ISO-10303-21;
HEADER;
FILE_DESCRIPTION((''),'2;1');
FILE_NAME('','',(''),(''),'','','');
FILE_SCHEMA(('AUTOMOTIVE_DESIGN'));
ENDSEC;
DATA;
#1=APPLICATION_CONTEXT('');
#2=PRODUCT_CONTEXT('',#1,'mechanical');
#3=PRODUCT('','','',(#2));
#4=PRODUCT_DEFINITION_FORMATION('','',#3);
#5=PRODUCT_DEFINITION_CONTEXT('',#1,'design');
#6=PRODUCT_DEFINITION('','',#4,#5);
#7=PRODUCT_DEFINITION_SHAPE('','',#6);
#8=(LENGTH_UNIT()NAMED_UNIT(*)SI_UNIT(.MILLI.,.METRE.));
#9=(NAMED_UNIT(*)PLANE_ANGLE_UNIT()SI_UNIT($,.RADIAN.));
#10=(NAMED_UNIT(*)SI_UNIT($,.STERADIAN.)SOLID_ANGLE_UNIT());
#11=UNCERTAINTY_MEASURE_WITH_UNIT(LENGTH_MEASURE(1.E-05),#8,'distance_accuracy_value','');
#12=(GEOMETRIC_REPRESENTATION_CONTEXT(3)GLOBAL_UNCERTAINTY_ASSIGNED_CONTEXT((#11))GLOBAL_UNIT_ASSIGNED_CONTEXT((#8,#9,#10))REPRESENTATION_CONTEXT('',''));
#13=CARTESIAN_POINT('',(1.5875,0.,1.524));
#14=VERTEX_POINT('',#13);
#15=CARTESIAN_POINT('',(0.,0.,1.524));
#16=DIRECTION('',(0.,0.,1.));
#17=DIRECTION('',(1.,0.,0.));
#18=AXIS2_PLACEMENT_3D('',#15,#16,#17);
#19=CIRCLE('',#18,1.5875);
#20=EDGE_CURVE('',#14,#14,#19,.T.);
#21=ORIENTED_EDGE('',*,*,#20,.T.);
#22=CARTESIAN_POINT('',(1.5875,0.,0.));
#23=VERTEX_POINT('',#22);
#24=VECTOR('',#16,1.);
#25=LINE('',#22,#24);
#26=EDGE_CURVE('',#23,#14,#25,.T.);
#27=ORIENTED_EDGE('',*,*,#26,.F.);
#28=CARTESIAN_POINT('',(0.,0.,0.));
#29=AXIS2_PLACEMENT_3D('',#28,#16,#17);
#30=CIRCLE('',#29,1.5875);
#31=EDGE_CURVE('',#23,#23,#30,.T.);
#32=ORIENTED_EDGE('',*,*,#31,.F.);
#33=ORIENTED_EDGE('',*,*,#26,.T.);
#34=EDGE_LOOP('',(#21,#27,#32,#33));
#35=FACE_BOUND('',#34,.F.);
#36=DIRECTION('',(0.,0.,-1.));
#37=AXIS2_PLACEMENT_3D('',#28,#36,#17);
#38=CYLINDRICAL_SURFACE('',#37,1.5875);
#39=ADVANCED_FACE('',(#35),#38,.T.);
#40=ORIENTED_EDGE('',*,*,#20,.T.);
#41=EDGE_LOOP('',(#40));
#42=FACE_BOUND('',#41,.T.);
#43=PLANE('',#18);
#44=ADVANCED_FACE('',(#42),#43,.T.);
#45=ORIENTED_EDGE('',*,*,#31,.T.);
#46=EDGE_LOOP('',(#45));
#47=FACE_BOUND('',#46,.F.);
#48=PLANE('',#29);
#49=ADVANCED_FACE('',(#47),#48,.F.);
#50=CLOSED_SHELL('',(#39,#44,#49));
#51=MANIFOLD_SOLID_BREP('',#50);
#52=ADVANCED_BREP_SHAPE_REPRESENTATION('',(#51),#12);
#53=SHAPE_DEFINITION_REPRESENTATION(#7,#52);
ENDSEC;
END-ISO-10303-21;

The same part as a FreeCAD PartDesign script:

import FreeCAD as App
import Part
import Sketcher

V = App.Vector
Q = App.Units.Quantity

doc = App.newDocument("Part")
body = doc.addObject("PartDesign::Body", "Body")

# Sketch on XY plane
sketch1 = body.newObject("Sketcher::SketchObject", "Sketch")
sketch1.AttachmentSupport = (doc.getObject("XY_Plane"), [""])
sketch1.MapMode = "FlatFace"
sketch1.addGeometry(Part.Circle(V(0, 0, 0), V(0, 0, 1), 1.6), False)
sketch1.addConstraint(Sketcher.Constraint("Coincident", 0, 3, -1, 1))
sketch1.addConstraint(Sketcher.Constraint("Diameter", 0, Q("0.125 in")))
pad1 = body.newObject("PartDesign::Pad", "Pad")
pad1.Profile = sketch1
pad1.Length = Q("0.06 in")

doc.recompute()
